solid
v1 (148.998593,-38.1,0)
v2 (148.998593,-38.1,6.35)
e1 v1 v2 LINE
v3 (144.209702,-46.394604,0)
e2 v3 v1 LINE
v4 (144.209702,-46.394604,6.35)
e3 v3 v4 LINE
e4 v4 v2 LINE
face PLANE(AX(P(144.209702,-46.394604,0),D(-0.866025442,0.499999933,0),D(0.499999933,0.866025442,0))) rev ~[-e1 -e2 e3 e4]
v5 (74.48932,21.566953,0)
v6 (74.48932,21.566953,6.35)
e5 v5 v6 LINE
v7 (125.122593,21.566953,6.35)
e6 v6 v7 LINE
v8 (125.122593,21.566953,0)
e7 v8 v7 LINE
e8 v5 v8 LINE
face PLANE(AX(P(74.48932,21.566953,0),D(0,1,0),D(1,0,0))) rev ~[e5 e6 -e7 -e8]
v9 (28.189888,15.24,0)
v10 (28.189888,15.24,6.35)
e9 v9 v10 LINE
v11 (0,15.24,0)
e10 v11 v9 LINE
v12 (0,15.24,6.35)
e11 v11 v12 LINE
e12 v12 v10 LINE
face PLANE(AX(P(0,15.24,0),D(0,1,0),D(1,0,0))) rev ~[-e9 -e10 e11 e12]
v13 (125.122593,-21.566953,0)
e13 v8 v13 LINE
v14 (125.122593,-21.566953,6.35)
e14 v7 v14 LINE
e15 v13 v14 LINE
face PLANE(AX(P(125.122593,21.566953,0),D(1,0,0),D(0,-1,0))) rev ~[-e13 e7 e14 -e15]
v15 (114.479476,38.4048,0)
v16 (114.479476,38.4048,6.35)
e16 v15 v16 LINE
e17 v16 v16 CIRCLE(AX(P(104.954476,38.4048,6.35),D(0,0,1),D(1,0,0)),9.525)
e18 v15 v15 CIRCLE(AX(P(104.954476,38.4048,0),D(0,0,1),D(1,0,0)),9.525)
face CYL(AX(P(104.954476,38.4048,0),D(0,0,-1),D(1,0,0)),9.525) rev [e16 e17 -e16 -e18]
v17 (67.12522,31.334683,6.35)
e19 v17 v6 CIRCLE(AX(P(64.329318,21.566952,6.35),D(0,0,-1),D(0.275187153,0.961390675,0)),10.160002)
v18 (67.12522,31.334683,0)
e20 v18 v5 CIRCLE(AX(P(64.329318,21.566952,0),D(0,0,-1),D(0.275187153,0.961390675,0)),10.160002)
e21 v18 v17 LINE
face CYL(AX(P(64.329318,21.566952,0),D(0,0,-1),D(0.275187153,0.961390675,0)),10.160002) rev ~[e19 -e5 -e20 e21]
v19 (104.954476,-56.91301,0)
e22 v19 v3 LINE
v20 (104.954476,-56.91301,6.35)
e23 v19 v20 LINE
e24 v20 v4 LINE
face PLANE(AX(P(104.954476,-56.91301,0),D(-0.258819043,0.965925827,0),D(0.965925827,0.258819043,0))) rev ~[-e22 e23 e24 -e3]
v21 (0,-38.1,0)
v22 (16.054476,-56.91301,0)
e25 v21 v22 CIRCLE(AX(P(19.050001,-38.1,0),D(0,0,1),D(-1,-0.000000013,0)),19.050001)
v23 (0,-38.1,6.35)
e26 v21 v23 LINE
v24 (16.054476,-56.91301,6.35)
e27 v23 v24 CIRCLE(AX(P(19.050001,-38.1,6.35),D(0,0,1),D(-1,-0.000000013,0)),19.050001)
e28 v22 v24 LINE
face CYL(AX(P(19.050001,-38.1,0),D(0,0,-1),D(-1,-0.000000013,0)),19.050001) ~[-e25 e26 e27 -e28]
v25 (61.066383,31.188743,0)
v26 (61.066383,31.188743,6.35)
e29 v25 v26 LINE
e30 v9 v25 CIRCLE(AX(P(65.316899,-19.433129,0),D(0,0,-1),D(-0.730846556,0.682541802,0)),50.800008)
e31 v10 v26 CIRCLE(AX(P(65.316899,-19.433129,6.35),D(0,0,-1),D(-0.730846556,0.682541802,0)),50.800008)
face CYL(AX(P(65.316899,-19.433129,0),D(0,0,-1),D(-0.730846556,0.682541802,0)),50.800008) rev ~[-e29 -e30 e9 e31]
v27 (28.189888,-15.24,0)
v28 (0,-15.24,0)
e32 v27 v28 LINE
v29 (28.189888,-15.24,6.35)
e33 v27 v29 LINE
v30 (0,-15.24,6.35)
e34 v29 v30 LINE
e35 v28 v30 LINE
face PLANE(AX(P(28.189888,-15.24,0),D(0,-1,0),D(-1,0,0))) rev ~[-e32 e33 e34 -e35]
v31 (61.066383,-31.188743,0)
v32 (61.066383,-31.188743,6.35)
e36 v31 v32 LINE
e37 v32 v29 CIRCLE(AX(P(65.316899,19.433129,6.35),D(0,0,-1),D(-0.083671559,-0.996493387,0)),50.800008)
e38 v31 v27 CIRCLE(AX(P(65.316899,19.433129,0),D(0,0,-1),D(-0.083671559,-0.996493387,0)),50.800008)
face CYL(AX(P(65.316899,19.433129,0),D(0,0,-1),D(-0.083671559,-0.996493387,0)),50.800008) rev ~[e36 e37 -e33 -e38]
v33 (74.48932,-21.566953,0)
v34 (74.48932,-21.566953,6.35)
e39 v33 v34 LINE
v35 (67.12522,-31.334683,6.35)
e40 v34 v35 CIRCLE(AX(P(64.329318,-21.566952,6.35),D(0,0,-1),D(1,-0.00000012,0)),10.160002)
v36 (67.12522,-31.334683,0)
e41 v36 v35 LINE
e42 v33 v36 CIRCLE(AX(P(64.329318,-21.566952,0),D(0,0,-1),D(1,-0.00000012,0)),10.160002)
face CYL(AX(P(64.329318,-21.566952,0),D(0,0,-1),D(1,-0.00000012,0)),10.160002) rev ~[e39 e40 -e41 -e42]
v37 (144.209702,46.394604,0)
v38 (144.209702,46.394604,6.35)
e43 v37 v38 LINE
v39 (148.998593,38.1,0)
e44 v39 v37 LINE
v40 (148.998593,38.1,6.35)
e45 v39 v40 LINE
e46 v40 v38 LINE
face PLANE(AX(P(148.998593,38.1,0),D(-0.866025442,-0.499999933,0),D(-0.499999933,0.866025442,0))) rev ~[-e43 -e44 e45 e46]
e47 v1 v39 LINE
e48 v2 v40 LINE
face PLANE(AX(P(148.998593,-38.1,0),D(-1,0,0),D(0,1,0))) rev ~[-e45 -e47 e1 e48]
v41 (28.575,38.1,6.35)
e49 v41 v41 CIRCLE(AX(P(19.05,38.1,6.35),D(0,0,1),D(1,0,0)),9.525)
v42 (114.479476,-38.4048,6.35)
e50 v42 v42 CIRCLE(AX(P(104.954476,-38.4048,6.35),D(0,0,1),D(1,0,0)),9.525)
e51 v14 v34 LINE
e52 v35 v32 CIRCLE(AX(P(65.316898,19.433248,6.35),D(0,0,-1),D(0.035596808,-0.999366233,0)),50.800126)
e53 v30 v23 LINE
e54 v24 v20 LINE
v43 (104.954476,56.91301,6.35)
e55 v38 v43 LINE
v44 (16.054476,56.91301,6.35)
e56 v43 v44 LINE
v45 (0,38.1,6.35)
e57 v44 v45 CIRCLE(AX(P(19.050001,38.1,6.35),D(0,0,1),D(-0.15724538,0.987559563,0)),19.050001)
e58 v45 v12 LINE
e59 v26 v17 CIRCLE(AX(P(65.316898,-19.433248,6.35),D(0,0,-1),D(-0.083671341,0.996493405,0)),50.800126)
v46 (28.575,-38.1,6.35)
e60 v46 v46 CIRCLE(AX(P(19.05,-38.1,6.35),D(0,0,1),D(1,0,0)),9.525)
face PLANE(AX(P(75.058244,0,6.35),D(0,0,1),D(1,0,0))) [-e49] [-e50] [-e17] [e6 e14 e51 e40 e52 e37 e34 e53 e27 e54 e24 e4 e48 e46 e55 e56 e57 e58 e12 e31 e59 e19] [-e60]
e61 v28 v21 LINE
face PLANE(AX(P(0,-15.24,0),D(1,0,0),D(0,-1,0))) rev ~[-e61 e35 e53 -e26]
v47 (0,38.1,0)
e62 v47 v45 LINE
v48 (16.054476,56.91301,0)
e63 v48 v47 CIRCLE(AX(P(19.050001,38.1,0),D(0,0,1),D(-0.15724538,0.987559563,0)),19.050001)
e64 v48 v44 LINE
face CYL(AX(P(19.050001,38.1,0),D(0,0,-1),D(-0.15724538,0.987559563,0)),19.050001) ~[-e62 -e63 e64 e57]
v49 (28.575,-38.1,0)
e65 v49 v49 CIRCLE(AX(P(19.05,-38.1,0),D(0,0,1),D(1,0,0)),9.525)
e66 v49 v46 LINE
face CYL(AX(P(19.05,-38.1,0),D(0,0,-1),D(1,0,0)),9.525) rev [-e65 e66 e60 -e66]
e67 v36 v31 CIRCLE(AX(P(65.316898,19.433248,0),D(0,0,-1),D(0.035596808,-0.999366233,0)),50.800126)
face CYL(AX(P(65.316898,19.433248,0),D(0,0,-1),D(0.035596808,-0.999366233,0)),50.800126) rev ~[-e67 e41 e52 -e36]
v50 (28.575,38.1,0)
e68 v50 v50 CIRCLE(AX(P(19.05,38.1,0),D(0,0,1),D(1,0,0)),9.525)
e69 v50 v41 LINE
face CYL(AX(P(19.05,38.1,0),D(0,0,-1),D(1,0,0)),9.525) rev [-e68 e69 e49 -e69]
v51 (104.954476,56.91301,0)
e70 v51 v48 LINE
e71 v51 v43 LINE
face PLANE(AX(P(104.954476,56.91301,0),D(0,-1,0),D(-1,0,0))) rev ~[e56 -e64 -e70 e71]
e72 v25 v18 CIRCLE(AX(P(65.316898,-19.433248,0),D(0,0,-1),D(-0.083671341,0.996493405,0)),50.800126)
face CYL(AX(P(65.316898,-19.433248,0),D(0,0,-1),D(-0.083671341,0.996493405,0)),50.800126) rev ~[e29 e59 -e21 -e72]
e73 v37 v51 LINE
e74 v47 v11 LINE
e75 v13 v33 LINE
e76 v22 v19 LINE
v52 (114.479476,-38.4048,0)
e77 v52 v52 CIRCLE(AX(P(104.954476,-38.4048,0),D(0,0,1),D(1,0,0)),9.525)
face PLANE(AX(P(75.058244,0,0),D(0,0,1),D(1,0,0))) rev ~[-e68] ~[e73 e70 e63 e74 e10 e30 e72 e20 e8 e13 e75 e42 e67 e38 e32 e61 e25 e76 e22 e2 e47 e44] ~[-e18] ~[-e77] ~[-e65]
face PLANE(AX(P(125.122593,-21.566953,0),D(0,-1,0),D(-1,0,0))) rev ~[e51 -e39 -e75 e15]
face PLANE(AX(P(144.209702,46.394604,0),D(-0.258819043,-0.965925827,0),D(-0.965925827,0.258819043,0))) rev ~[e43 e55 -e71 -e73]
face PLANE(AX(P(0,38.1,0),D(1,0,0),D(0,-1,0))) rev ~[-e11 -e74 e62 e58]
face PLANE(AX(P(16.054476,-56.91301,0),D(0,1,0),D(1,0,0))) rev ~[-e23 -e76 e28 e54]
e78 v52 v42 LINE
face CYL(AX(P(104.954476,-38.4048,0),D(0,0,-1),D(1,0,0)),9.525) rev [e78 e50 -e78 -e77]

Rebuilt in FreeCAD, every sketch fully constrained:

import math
import FreeCAD as App
import Part
import Sketcher
from FreeCAD import Vector
Q = App.Units.Quantity

doc = App.newDocument("Part")
params = doc.addObject("Spreadsheet::Sheet", "Params")
for row, (alias, value) in enumerate([
    ("sketch1_radius", "0.4000001 in"),
    ("sketch1_radius2", "0.4000001 in"),
    ("sketch1_diameter", "0.75 in"),
    ("sketch1_diameter2", "0.75 in"),
    ("sketch1_diameter3", "0.75 in"),
    ("pad1_length", "0.25 in"),
], start=1):
    params.set(f"A{row}", alias)
    params.set(f"B{row}", "=" + value)
    params.setAlias(f"B{row}", alias)

body = doc.addObject("PartDesign::Body", "Body")

sketch1 = body.newObject("Sketcher::SketchObject", "Sketch")
sketch1.AttachmentSupport = (doc.getObject("XY_Plane"), [""])
sketch1.MapMode = "FlatFace"
sketch1.addGeometry([
    Part.LineSegment(Vector(104.954476, 56.91301, 0), Vector(16.054476, 56.91301, 0)),
    Part.ArcOfCircle(Part.Circle(Vector(19.050001, 38.1, 0), Vector(0, 0, 1), 19.050001), math.radians(99.047044), math.radians(179.999999)),
    Part.LineSegment(Vector(0, 38.1, 0), Vector(0, 15.24, 0)),
    Part.LineSegment(Vector(0, 15.24, 0), Vector(28.189888, 15.24, 0)),
    Part.ArcOfCircle(Part.Circle(Vector(65.316899, -19.433129, 0), Vector(0, 0, 1), 50.800008), math.radians(94.799639), math.radians(136.957411)),
    Part.ArcOfCircle(Part.Circle(Vector(65.316898, -19.433248, 0), Vector(0, 0, 1), 50.800126), math.radians(87.960022), math.radians(94.799626)),
    Part.ArcOfCircle(Part.Circle(Vector(64.329318, 21.566952, 0), Vector(0, 0, 1), 10.160002), math.radians(0.000007), math.radians(74.026832)),
    Part.LineSegment(Vector(74.48932, 21.566953, 0), Vector(125.122593, 21.566953, 0)),
    Part.LineSegment(Vector(125.122593, 21.566953, 0), Vector(125.122593, -21.566953, 0)),
    Part.LineSegment(Vector(125.122593, -21.566953, 0), Vector(74.48932, -21.566953, 0)),
    Part.ArcOfCircle(Part.Circle(Vector(64.329318, -21.566952, 0), Vector(0, 0, 1), 10.160002), math.radians(-74.026832), math.radians(-0.000007)),
    Part.ArcOfCircle(Part.Circle(Vector(65.316898, 19.433248, 0), Vector(0, 0, 1), 50.800126), math.radians(-94.799626), math.radians(-87.960022)),
    Part.ArcOfCircle(Part.Circle(Vector(65.316899, 19.433129, 0), Vector(0, 0, 1), 50.800008), math.radians(-136.957411), math.radians(-94.799639)),
    Part.LineSegment(Vector(28.189888, -15.24, 0), Vector(0, -15.24, 0)),
    Part.LineSegment(Vector(0, -15.24, 0), Vector(0, -38.1, 0)),
    Part.ArcOfCircle(Part.Circle(Vector(19.050001, -38.1, 0), Vector(0, 0, 1), 19.050001), math.radians(-179.999999), math.radians(-99.047044)),
    Part.LineSegment(Vector(16.054476, -56.91301, 0), Vector(104.954476, -56.91301, 0)),
    Part.LineSegment(Vector(104.954476, -56.91301, 0), Vector(144.209702, -46.394604, 0)),
    Part.LineSegment(Vector(144.209702, -46.394604, 0), Vector(148.998593, -38.1, 0)),
    Part.LineSegment(Vector(148.998593, -38.1, 0), Vector(148.998593, 38.1, 0)),
    Part.LineSegment(Vector(148.998593, 38.1, 0), Vector(144.209702, 46.394604, 0)),
    Part.LineSegment(Vector(144.209702, 46.394604, 0), Vector(104.954476, 56.91301, 0)),
    Part.Circle(Vector(19.05, -38.1, 0), Vector(0, 0, 1), 9.525),
    Part.Circle(Vector(104.954476, -38.4048, 0), Vector(0, 0, 1), 9.525),
    Part.Circle(Vector(19.05, 38.1, 0), Vector(0, 0, 1), 9.525),
    Part.Circle(Vector(104.954476, 38.4048, 0), Vector(0, 0, 1), 9.525),
], False)
sketch1.addConstraint([
    Sketcher.Constraint("Coincident", 0, 2, 1, 1),
    Sketcher.Constraint("Coincident", 1, 2, 2, 1),
    Sketcher.Constraint("Coincident", 2, 2, 3, 1),
    Sketcher.Constraint("Coincident", 3, 2, 4, 2),
    Sketcher.Constraint("Coincident", 4, 1, 5, 2),
    Sketcher.Constraint("Coincident", 5, 1, 6, 2),
    Sketcher.Constraint("Coincident", 6, 1, 7, 1),
    Sketcher.Constraint("Coincident", 7, 2, 8, 1),
    Sketcher.Constraint("Coincident", 8, 2, 9, 1),
    Sketcher.Constraint("Coincident", 9, 2, 10, 2),
    Sketcher.Constraint("Coincident", 10, 1, 11, 2),
    Sketcher.Constraint("Coincident", 11, 1, 12, 2),
    Sketcher.Constraint("Coincident", 12, 1, 13, 1),
    Sketcher.Constraint("Coincident", 13, 2, 14, 1),
    Sketcher.Constraint("Coincident", 14, 2, 15, 1),
    Sketcher.Constraint("Coincident", 15, 2, 16, 1),
    Sketcher.Constraint("Coincident", 16, 2, 17, 1),
    Sketcher.Constraint("Coincident", 17, 2, 18, 1),
    Sketcher.Constraint("Coincident", 18, 2, 19, 1),
    Sketcher.Constraint("Coincident", 19, 2, 20, 1),
    Sketcher.Constraint("Coincident", 20, 2, 21, 1),
    Sketcher.Constraint("Coincident", 21, 2, 0, 1),
    Sketcher.Constraint("Horizontal", 0),
    Sketcher.Constraint("Vertical", 2),
    Sketcher.Constraint("Horizontal", 3),
    Sketcher.Constraint("Horizontal", 7),
    Sketcher.Constraint("Vertical", 8),
    Sketcher.Constraint("Horizontal", 9),
    Sketcher.Constraint("Horizontal", 13),
    Sketcher.Constraint("Vertical", 14),
    Sketcher.Constraint("Horizontal", 16),
    Sketcher.Constraint("Vertical", 19),
    Sketcher.Constraint("Coincident", 22, 3, 15, 3),
    Sketcher.Constraint("Coincident", 24, 3, 1, 3),
    Sketcher.Constraint("PointOnObject", 1, 2, -2),
    Sketcher.Constraint("PointOnObject", 13, 2, -2),
    Sketcher.Constraint("Radius", 6, Q("0.4000001 in")),
    Sketcher.Constraint("Radius", 10, Q("0.4000001 in")),
    Sketcher.Constraint("Diameter", 22, Q("0.75 in")),
    Sketcher.Constraint("Diameter", 23, Q("0.75 in")),
    Sketcher.Constraint("Diameter", 24, Q("0.75 in")),
    Sketcher.Constraint("Diameter", 25, Q("0.75 in")),
    Sketcher.Constraint("DistanceY", 19, 1, 19, 2, Q("3 in")),
    Sketcher.Constraint("Radius", 1, Q("0.75 in")),
    Sketcher.Constraint("Radius", 15, Q("0.75 in")),
    Sketcher.Constraint("DistanceX", 0, 2, 0, 1, Q("3.5 in")),
    Sketcher.Constraint("DistanceX", 16, 1, 16, 2, Q("3.5 in")),
    Sketcher.Constraint("DistanceY", 2, 2, 2, 1, Q("0.9 in")),
    Sketcher.Constraint("DistanceY", 14, 2, 14, 1, Q("0.9 in")),
    Sketcher.Constraint("Distance", 17, Q("1.6 in")),
    Sketcher.Constraint("Distance", 21, Q("1.6 in")),
    Sketcher.Constraint("DistanceY", -1, 1, 1, 3, Q("1.5 in")),
    Sketcher.Constraint("DistanceY", 15, 3, -1, 1, Q("1.5 in")),
    Sketcher.Constraint("DistanceY", -1, 1, 1, 2, Q("1.5 in")),
    Sketcher.Constraint("DistanceY", 12, 1, -1, 1, Q("0.6 in")),
    Sketcher.Constraint("DistanceY", 18, 2, -1, 1, Q("1.5 in")),
    Sketcher.Constraint("DistanceX", 8, 2, 18, 2, Q("0.94 in")),
    Sketcher.Constraint("DistanceY", 23, 3, -1, 1, Q("1.512 in")),
    Sketcher.Constraint("DistanceY", -1, 1, 25, 3, Q("1.512 in")),
    Sketcher.Constraint("Radius", 4, 50.800008),
    Sketcher.Constraint("Radius", 5, 50.800126),
    Sketcher.Constraint("Radius", 11, 50.800126),
    Sketcher.Constraint("Radius", 12, 50.800008),
    Sketcher.Constraint("DistanceX", 3, 1, 3, 2, 28.189888),
    Sketcher.Constraint("DistanceX", 13, 2, 13, 1, 28.189888),
    Sketcher.Constraint("DistanceX", -1, 1, 4, 3, 65.316899),
    Sketcher.Constraint("DistanceX", -1, 1, 12, 3, 65.316899),
    Sketcher.Constraint("DistanceX", -1, 1, 17, 2, 144.209702),
    Sketcher.Constraint("DistanceX", -1, 1, 20, 2, 144.209702),
    Sketcher.Constraint("DistanceY", 5, 3, 6, 3, 41.000199),
    Sketcher.Constraint("DistanceY", 10, 3, 11, 3, 41.000199),
    Sketcher.Constraint("DistanceX", 5, 1, 6, 1, 7.3641),
    Sketcher.Constraint("DistanceX", 10, 1, 9, 2, 7.3641),
    Sketcher.Constraint("DistanceX", 7, 1, 7, 2, 50.633273),
    Sketcher.Constraint("DistanceX", 9, 2, 9, 1, 50.633273),
    Sketcher.Constraint("DistanceY", 8, 2, 8, 1, 43.133906),
    Sketcher.Constraint("DistanceY", -1, 1, 6, 3, 21.566952),
    Sketcher.Constraint("DistanceY", -1, 1, 0, 2, 56.91301),
    Sketcher.Constraint("DistanceY", 15, 2, -1, 1, 56.91301),
    Sketcher.Constraint("DistanceX", 5, 3, 23, 3, 39.637578),
    Sketcher.Constraint("DistanceX", 11, 3, 25, 3, 39.637578),
    Sketcher.Constraint("DistanceY", 6, 3, 4, 1, 9.621791),
    Sketcher.Constraint("DistanceY", 6, 1, 5, 1, 9.76773),
    Sketcher.Constraint("DistanceY", 10, 1, 11, 1, 0.14594),
])
sketch1.setExpression("Constraints[36]", "Params.sketch1_radius")
sketch1.setExpression("Constraints[37]", "Params.sketch1_radius2")
sketch1.setExpression("Constraints[38]", "Params.sketch1_diameter")
sketch1.setExpression("Constraints[39]", "Params.sketch1_diameter2")
sketch1.setExpression("Constraints[40]", "Params.sketch1_diameter3")
pad1 = body.newObject("PartDesign::Pad", "Pad")
pad1.Profile = sketch1
pad1.setExpression("Length", "Params.pad1_length")

doc.recompute()
